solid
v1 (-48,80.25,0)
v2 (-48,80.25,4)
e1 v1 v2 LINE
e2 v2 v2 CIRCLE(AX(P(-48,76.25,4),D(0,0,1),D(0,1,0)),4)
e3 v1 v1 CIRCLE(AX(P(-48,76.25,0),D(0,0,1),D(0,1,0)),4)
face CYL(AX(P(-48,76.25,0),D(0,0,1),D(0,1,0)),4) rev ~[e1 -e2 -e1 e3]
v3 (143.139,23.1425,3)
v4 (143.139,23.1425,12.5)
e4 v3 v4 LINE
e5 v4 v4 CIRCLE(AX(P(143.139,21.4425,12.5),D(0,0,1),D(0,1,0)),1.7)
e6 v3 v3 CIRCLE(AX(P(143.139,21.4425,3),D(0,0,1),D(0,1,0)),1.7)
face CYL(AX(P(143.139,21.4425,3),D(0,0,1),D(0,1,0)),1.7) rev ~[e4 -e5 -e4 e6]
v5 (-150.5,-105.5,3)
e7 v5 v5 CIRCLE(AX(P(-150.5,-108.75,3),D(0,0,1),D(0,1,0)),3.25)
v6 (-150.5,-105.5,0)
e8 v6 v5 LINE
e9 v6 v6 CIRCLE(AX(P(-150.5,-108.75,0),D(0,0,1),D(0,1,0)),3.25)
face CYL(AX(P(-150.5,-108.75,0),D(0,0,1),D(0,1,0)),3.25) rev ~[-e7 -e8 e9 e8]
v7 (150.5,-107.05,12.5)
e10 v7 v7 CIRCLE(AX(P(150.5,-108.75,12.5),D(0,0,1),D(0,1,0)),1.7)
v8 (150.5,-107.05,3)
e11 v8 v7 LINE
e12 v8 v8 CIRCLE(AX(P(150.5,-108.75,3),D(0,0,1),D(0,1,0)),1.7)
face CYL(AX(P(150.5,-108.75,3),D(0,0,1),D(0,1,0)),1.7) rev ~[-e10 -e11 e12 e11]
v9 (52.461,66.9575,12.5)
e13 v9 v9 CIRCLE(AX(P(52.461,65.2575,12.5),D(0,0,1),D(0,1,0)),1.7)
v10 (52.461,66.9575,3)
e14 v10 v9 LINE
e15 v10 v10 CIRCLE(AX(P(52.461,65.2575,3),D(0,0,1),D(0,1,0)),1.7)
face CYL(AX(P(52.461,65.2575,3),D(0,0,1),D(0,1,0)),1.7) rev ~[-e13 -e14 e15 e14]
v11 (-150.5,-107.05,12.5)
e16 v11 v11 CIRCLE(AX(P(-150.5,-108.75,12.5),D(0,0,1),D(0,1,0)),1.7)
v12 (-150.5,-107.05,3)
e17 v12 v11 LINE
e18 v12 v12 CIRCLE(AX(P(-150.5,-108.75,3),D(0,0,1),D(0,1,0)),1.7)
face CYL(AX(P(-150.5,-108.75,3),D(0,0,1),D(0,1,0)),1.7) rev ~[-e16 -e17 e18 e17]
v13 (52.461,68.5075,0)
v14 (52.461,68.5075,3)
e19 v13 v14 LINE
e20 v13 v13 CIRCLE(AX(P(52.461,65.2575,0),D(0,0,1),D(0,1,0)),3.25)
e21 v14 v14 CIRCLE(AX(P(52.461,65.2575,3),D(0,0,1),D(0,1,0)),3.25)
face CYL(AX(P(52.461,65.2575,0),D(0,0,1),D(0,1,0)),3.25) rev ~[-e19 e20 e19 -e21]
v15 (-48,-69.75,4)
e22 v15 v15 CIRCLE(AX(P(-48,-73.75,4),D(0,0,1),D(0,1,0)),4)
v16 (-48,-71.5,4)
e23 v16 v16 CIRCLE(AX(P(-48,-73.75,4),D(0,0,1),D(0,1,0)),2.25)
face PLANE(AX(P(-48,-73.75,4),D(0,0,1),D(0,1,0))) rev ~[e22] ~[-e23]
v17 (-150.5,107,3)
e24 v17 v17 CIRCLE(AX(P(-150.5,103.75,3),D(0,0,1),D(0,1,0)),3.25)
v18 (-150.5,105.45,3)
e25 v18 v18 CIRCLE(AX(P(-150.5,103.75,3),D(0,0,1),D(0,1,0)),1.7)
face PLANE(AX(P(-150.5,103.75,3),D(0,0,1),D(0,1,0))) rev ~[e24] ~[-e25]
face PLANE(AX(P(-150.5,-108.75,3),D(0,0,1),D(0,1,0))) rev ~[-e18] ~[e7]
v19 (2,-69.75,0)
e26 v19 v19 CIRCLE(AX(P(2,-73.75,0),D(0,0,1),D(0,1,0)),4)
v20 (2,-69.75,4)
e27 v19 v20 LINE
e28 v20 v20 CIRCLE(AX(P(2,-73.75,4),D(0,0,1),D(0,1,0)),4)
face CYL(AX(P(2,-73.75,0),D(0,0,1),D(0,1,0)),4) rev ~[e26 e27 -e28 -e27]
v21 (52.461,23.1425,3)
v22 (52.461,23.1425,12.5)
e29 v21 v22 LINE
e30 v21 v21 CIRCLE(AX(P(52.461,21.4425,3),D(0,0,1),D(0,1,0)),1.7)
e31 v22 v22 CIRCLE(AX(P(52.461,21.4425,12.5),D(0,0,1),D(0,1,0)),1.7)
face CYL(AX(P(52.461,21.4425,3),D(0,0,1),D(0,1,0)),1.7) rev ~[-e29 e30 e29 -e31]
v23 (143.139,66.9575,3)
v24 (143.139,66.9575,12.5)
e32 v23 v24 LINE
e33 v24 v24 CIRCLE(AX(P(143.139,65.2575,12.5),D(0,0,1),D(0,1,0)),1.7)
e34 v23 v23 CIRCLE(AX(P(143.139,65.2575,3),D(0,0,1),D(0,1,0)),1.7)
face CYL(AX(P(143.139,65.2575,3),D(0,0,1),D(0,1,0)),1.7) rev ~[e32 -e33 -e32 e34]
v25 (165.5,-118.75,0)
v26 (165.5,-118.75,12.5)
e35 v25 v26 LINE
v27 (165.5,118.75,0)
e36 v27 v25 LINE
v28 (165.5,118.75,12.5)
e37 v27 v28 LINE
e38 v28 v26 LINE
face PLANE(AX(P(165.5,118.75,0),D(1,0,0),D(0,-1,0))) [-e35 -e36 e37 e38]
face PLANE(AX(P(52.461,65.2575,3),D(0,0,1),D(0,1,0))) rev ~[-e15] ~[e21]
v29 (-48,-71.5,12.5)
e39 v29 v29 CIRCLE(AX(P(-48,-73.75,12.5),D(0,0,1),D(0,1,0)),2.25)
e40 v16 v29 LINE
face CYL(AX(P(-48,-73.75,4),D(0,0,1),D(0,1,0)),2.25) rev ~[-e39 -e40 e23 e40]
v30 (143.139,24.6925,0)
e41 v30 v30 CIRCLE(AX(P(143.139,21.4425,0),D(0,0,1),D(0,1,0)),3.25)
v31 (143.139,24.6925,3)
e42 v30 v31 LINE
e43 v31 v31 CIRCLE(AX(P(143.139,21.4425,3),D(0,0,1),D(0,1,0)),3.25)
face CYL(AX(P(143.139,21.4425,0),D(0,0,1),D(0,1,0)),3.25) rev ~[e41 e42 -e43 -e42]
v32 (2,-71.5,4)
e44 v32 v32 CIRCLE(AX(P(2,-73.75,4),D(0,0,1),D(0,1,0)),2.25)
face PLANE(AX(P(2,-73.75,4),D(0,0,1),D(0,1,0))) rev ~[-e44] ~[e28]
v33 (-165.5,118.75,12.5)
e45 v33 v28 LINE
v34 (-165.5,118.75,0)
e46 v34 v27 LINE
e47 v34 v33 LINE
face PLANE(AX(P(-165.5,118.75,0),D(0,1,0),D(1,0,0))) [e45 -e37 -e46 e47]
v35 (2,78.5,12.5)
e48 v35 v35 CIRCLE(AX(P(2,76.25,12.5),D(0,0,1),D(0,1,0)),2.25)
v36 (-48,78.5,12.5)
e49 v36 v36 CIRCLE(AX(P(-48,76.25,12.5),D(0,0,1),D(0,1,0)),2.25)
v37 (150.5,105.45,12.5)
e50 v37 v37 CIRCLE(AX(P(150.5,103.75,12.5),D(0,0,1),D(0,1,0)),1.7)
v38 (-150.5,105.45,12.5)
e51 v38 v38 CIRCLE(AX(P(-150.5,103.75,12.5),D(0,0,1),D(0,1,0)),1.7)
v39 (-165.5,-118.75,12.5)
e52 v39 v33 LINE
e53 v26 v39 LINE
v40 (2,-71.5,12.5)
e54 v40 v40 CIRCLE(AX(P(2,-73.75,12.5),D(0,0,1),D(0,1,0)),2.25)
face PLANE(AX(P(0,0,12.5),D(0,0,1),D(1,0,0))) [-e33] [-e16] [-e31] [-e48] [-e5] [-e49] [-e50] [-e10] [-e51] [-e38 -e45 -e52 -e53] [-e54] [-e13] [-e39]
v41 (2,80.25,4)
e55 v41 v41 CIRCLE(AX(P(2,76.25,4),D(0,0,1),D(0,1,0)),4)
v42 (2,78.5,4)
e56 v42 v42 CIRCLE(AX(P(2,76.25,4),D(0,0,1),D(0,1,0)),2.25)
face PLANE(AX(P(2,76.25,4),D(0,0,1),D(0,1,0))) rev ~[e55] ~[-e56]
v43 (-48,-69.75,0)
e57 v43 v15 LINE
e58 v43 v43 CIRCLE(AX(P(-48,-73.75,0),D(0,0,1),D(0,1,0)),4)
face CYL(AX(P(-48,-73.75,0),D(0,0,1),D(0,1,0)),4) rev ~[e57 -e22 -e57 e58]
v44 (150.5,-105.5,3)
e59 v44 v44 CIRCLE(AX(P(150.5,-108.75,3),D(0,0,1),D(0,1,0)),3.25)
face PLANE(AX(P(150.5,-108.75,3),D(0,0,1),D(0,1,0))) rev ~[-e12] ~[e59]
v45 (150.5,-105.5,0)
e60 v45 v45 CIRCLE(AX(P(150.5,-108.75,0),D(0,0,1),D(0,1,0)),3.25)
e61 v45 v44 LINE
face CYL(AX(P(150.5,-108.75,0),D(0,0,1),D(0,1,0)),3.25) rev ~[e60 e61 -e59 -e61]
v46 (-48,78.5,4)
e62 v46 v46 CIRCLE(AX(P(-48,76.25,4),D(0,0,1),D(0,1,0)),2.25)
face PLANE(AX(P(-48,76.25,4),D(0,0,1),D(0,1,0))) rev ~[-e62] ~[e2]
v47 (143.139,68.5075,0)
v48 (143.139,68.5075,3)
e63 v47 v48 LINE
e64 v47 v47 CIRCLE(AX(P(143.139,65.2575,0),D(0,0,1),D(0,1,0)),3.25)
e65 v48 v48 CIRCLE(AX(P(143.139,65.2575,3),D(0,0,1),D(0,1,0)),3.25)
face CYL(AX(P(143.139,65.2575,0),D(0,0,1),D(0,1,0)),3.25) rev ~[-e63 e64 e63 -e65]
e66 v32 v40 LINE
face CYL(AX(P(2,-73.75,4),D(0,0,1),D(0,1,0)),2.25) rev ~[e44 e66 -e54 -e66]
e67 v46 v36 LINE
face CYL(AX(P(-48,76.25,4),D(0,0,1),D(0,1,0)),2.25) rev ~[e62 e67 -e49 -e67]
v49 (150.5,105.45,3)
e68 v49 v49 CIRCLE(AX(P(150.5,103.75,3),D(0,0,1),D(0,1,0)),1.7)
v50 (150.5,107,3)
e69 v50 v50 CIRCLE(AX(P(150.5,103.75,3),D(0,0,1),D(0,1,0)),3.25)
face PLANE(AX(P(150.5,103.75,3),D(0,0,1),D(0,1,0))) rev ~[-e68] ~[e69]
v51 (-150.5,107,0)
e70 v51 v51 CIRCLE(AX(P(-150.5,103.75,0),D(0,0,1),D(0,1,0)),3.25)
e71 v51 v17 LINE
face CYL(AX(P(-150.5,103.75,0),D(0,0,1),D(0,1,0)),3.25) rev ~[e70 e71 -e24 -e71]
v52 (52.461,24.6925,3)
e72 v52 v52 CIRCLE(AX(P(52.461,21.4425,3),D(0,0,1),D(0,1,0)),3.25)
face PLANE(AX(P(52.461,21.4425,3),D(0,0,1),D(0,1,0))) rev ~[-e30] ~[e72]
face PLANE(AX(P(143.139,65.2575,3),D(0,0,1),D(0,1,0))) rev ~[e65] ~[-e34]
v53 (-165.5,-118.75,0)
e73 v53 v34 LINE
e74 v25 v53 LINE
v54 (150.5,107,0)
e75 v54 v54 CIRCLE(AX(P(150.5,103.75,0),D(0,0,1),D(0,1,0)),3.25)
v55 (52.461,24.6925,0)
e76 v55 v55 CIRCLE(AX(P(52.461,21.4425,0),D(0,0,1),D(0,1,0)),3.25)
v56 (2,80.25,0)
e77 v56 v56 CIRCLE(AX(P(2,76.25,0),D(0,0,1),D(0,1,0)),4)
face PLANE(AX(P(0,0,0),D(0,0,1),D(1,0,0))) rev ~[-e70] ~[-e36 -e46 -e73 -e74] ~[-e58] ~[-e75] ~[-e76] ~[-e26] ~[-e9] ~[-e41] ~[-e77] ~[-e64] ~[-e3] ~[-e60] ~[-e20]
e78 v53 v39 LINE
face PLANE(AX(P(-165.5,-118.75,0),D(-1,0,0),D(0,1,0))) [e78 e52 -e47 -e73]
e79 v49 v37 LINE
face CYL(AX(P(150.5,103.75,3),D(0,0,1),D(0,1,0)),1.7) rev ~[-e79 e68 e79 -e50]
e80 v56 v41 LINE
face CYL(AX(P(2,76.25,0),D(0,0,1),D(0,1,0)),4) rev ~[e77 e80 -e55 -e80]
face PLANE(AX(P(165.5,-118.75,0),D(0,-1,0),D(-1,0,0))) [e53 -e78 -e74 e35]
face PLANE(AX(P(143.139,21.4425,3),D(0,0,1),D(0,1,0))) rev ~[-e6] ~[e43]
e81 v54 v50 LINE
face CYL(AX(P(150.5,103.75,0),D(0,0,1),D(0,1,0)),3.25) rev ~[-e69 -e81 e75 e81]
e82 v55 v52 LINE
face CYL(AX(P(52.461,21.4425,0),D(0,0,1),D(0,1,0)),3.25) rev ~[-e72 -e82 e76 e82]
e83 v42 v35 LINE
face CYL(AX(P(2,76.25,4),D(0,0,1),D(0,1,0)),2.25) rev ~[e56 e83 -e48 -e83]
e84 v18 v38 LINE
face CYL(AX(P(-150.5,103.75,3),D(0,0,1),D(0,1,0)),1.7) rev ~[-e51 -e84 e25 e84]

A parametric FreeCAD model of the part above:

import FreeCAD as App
import Part
import Sketcher

V = App.Vector
Q = App.Units.Quantity

doc = App.newDocument("Part")
body = doc.addObject("PartDesign::Body", "Body")

# Sketch on XY plane
sketch1 = body.newObject("Sketcher::SketchObject", "Sketch")
sketch1.AttachmentSupport = (doc.getObject("XY_Plane"), [""])
sketch1.MapMode = "FlatFace"
sketch1.addGeometry([
    Part.LineSegment(V(166, 119, 0), V(-166, 119, 0)),
    Part.LineSegment(V(-166, 119, 0), V(-166, -119, 0)),
    Part.LineSegment(V(-166, -119, 0), V(166, -119, 0)),
    Part.LineSegment(V(166, -119, 0), V(166, 119, 0)),
], False)
sketch1.addConstraint([
    Sketcher.Constraint("Coincident", 0, 2, 1, 1),
    Sketcher.Constraint("Coincident", 1, 2, 2, 1),
    Sketcher.Constraint("Coincident", 2, 2, 3, 1),
    Sketcher.Constraint("Coincident", 3, 2, 0, 1),
    Sketcher.Constraint("Horizontal", 0),
    Sketcher.Constraint("Vertical", 1),
    Sketcher.Constraint("Horizontal", 2),
    Sketcher.Constraint("Vertical", 3),
    Sketcher.Constraint("Symmetric", 0, 2, 2, 2, -1, 1),
    Sketcher.Constraint("DistanceX", 0, 2, 0, 1, Q("331 mm")),
    Sketcher.Constraint("DistanceY", 1, 2, 1, 1, Q("237.5 mm")),
])
pad1 = body.newObject("PartDesign::Pad", "Pad")
pad1.Profile = sketch1
pad1.Length = 12.5

# Sketch on XY plane
sketch2 = body.newObject("Sketcher::SketchObject", "Sketch001")
sketch2.AttachmentSupport = (doc.getObject("XY_Plane"), [""])
sketch2.MapMode = "FlatFace"
sketch2.addGeometry([
    Part.Circle(V(150.5, 103.8, 0), V(0, 0, 1), 1.6),
    Part.Circle(V(-150.5, 103.8, 0), V(0, 0, 1), 1.6),
    Part.Circle(V(150.5, -108.8, 0), V(0, 0, 1), 1.6),
    Part.Circle(V(-150.5, -108.8, 0), V(0, 0, 1), 1.6),
], False)
sketch2.addConstraint([
    Sketcher.Constraint("Equal", 0, 1),
    Sketcher.Constraint("Equal", 1, 2),
    Sketcher.Constraint("Equal", 2, 3),
    Sketcher.Constraint("Symmetric", 0, 3, 1, 3, -2),
    Sketcher.Constraint("Symmetric", 2, 3, 3, 3, -2),
    Sketcher.Constraint("Vertical", 0, 3, 2, 3),
    Sketcher.Constraint("Diameter", 0, Q("3.1 mm")),
    Sketcher.Constraint("DistanceX", 1, 3, 0, 3, Q("301 mm")),
    Sketcher.Constraint("DistanceY", 2, 3, 0, 3, Q("212.5 mm")),
    Sketcher.Constraint("DistanceY", -1, 1, 0, 3, Q("103.75 mm")),
])
pocket1 = body.newObject("PartDesign::Pocket", "Pocket")
pocket1.Profile = sketch2
pocket1.Type = "ThroughAll"
pocket1.Reversed = True

# Sketch on XY plane
sketch3 = body.newObject("Sketcher::SketchObject", "Sketch002")
sketch3.AttachmentSupport = (doc.getObject("XY_Plane"), [""])
sketch3.MapMode = "FlatFace"
sketch3.addGeometry([
    Part.Circle(V(150.5, 103.8, 0), V(0, 0, 1), 1.7),
    Part.Circle(V(150.5, -108.8, 0), V(0, 0, 1), 1.7),
    Part.Circle(V(-150.5, -108.8, 0), V(0, 0, 1), 1.7),
    Part.Circle(V(-150.5, 103.8, 0), V(0, 0, 1), 1.7),
], False)
sketch3.addConstraint([
    Sketcher.Constraint("Equal", 0, 1),
    Sketcher.Constraint("Equal", 1, 2),
    Sketcher.Constraint("Equal", 2, 3),
    Sketcher.Constraint("Symmetric", 1, 3, 2, 3, -2),
    Sketcher.Constraint("Symmetric", 0, 3, 3, 3, -2),
    Sketcher.Constraint("Vertical", 0, 3, 1, 3),
    Sketcher.Constraint("Diameter", 0, Q("3.4 mm")),
    Sketcher.Constraint("DistanceX", 2, 3, 1, 3, Q("301 mm")),
    Sketcher.Constraint("DistanceY", 1, 3, 0, 3, Q("212.5 mm")),
    Sketcher.Constraint("DistanceY", -1, 1, 0, 3, Q("103.75 mm")),
])
doc.recompute()
hole = body.newObject("PartDesign::Hole", "Hole")
hole.Profile = sketch3
hole.ThreadType = "None"
hole.Diameter = 3.4
hole.DepthType = "ThroughAll"
hole.HoleCutType = "Counterbore"
hole.HoleCutDiameter = 6.5
hole.HoleCutDepth = 3
hole.Reversed = True

# Sketch on XY plane
sketch4 = body.newObject("Sketcher::SketchObject", "Sketch003")
sketch4.AttachmentSupport = (doc.getObject("XY_Plane"), [""])
sketch4.MapMode = "FlatFace"
sketch4.addGeometry([
    Part.Circle(V(-48, -73.8, 0), V(0, 0, 1), 2.2),
    Part.Circle(V(2, -73.8, 0), V(0, 0, 1), 2.2),
    Part.Circle(V(-48, 76.2, 0), V(0, 0, 1), 2.2),
    Part.Circle(V(2, 76.2, 0), V(0, 0, 1), 2.2),
], False)
sketch4.addConstraint([
    Sketcher.Constraint("Equal", 0, 1),
    Sketcher.Constraint("Equal", 1, 2),
    Sketcher.Constraint("Equal", 2, 3),
    Sketcher.Constraint("Horizontal", 0, 3, 1, 3),
    Sketcher.Constraint("Horizontal", 2, 3, 3, 3),
    Sketcher.Constraint("Vertical", 0, 3, 2, 3),
    Sketcher.Constraint("Vertical", 1, 3, 3, 3),
    Sketcher.Constraint("Diameter", 0, Q("4.5 mm")),
    Sketcher.Constraint("DistanceX", 0, 3, -1, 1, Q("48 mm")),
    Sketcher.Constraint("DistanceX", -1, 1, 1, 3, Q("2 mm")),
    Sketcher.Constraint("DistanceY", 0, 3, 2, 3, Q("150 mm")),
    Sketcher.Constraint("DistanceY", 0, 3, -1, 1, Q("73.75 mm")),
])
doc.recompute()
hole2 = body.newObject("PartDesign::Hole", "Hole001")
hole2.Profile = sketch4
hole2.ThreadType = "None"
hole2.Diameter = 4.5
hole2.DepthType = "ThroughAll"
hole2.HoleCutType = "Counterbore"
hole2.HoleCutDiameter = 8
hole2.HoleCutDepth = 4
hole2.Reversed = True

# Sketch on XY plane
sketch5 = body.newObject("Sketcher::SketchObject", "Sketch004")
sketch5.AttachmentSupport = (doc.getObject("XY_Plane"), [""])
sketch5.MapMode = "FlatFace"
sketch5.addGeometry([
    Part.Circle(V(143.1, 65.3, 0), V(0, 0, 1), 1.7),
    Part.Circle(V(143.1, 21.4, 0), V(0, 0, 1), 1.7),
    Part.Circle(V(52.5, 65.3, 0), V(0, 0, 1), 1.7),
    Part.Circle(V(52.5, 21.4, 0), V(0, 0, 1), 1.7),
], False)
sketch5.addConstraint([
    Sketcher.Constraint("Equal", 0, 1),
    Sketcher.Constraint("Equal", 1, 2),
    Sketcher.Constraint("Equal", 2, 3),
    Sketcher.Constraint("Horizontal", 0, 3, 2, 3),
    Sketcher.Constraint("Horizontal", 1, 3, 3, 3),
    Sketcher.Constraint("Vertical", 0, 3, 1, 3),
    Sketcher.Constraint("Vertical", 2, 3, 3, 3),
    Sketcher.Constraint("Diameter", 0, Q("3.4 mm")),
    Sketcher.Constraint("DistanceX", -1, 1, 0, 3, Q("143.139 mm")),
    Sketcher.Constraint("DistanceX", -1, 1, 2, 3, Q("52.461 mm")),
    Sketcher.Constraint("DistanceY", 1, 3, 0, 3, Q("43.815 mm")),
    Sketcher.Constraint("DistanceY", -1, 1, 0, 3, Q("65.2575 mm")),
])
doc.recompute()
hole3 = body.newObject("PartDesign::Hole", "Hole002")
hole3.Profile = sketch5
hole3.ThreadType = "None"
hole3.Diameter = 3.4
hole3.DepthType = "ThroughAll"
hole3.HoleCutType = "Counterbore"
hole3.HoleCutDiameter = 6.5
hole3.HoleCutDepth = 3
hole3.Reversed = True

doc.recompute()
